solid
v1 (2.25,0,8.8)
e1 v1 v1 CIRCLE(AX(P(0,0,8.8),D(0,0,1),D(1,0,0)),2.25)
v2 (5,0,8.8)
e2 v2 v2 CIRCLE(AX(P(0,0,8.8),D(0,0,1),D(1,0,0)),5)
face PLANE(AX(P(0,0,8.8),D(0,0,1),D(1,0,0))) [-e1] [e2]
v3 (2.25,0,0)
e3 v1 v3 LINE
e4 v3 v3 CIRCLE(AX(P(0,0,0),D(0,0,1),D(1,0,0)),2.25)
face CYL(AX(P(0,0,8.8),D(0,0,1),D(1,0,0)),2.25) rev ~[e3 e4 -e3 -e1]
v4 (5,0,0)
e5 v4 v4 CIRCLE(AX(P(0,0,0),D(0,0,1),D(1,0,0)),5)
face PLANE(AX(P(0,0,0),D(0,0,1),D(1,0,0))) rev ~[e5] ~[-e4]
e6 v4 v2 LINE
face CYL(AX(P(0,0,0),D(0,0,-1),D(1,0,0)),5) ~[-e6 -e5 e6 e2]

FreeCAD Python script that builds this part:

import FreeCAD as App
import Part
import Sketcher

V = App.Vector
Q = App.Units.Quantity

doc = App.newDocument("Part")
body = doc.addObject("PartDesign::Body", "Body")

# Sketch on XY plane
sketch1 = doc.addObject("Sketcher::SketchObject", "Sketch")
body.addObject(sketch1)
sketch1.AttachmentSupport = (doc.XY_Plane, [""])
sketch1.MapMode = "FlatFace"
sketch1.addGeometry(Part.Circle(V(0, 0, 0), V(0, 0, 1), 5), False)
sketch1.addConstraint([
    Sketcher.Constraint("Coincident", 0, 3, -1, 1),
    Sketcher.Constraint("Diameter", 0, Q("10 mm")),
])
pad1 = doc.addObject("PartDesign::Pad", "Pad")
body.addObject(pad1)
pad1.Profile = sketch1
pad1.Length = 8.8

# Sketch on XY plane
sketch2 = doc.addObject("Sketcher::SketchObject", "Sketch001")
body.addObject(sketch2)
sketch2.AttachmentSupport = (doc.XY_Plane, [""])
sketch2.MapMode = "FlatFace"
sketch2.AttachmentOffset = App.Placement(V(0, 0, 8.8), App.Rotation())
sketch2.addGeometry(Part.Circle(V(0, 0, 0), V(0, 0, 1), 2.2), False)
sketch2.addConstraint([
    Sketcher.Constraint("Coincident", 0, 3, -1, 1),
    Sketcher.Constraint("Diameter", 0, Q("4.5 mm")),
])
pocket1 = doc.addObject("PartDesign::Pocket", "Pocket")
body.addObject(pocket1)
pocket1.Profile = sketch2
pocket1.Type = "ThroughAll"

doc.recompute()
